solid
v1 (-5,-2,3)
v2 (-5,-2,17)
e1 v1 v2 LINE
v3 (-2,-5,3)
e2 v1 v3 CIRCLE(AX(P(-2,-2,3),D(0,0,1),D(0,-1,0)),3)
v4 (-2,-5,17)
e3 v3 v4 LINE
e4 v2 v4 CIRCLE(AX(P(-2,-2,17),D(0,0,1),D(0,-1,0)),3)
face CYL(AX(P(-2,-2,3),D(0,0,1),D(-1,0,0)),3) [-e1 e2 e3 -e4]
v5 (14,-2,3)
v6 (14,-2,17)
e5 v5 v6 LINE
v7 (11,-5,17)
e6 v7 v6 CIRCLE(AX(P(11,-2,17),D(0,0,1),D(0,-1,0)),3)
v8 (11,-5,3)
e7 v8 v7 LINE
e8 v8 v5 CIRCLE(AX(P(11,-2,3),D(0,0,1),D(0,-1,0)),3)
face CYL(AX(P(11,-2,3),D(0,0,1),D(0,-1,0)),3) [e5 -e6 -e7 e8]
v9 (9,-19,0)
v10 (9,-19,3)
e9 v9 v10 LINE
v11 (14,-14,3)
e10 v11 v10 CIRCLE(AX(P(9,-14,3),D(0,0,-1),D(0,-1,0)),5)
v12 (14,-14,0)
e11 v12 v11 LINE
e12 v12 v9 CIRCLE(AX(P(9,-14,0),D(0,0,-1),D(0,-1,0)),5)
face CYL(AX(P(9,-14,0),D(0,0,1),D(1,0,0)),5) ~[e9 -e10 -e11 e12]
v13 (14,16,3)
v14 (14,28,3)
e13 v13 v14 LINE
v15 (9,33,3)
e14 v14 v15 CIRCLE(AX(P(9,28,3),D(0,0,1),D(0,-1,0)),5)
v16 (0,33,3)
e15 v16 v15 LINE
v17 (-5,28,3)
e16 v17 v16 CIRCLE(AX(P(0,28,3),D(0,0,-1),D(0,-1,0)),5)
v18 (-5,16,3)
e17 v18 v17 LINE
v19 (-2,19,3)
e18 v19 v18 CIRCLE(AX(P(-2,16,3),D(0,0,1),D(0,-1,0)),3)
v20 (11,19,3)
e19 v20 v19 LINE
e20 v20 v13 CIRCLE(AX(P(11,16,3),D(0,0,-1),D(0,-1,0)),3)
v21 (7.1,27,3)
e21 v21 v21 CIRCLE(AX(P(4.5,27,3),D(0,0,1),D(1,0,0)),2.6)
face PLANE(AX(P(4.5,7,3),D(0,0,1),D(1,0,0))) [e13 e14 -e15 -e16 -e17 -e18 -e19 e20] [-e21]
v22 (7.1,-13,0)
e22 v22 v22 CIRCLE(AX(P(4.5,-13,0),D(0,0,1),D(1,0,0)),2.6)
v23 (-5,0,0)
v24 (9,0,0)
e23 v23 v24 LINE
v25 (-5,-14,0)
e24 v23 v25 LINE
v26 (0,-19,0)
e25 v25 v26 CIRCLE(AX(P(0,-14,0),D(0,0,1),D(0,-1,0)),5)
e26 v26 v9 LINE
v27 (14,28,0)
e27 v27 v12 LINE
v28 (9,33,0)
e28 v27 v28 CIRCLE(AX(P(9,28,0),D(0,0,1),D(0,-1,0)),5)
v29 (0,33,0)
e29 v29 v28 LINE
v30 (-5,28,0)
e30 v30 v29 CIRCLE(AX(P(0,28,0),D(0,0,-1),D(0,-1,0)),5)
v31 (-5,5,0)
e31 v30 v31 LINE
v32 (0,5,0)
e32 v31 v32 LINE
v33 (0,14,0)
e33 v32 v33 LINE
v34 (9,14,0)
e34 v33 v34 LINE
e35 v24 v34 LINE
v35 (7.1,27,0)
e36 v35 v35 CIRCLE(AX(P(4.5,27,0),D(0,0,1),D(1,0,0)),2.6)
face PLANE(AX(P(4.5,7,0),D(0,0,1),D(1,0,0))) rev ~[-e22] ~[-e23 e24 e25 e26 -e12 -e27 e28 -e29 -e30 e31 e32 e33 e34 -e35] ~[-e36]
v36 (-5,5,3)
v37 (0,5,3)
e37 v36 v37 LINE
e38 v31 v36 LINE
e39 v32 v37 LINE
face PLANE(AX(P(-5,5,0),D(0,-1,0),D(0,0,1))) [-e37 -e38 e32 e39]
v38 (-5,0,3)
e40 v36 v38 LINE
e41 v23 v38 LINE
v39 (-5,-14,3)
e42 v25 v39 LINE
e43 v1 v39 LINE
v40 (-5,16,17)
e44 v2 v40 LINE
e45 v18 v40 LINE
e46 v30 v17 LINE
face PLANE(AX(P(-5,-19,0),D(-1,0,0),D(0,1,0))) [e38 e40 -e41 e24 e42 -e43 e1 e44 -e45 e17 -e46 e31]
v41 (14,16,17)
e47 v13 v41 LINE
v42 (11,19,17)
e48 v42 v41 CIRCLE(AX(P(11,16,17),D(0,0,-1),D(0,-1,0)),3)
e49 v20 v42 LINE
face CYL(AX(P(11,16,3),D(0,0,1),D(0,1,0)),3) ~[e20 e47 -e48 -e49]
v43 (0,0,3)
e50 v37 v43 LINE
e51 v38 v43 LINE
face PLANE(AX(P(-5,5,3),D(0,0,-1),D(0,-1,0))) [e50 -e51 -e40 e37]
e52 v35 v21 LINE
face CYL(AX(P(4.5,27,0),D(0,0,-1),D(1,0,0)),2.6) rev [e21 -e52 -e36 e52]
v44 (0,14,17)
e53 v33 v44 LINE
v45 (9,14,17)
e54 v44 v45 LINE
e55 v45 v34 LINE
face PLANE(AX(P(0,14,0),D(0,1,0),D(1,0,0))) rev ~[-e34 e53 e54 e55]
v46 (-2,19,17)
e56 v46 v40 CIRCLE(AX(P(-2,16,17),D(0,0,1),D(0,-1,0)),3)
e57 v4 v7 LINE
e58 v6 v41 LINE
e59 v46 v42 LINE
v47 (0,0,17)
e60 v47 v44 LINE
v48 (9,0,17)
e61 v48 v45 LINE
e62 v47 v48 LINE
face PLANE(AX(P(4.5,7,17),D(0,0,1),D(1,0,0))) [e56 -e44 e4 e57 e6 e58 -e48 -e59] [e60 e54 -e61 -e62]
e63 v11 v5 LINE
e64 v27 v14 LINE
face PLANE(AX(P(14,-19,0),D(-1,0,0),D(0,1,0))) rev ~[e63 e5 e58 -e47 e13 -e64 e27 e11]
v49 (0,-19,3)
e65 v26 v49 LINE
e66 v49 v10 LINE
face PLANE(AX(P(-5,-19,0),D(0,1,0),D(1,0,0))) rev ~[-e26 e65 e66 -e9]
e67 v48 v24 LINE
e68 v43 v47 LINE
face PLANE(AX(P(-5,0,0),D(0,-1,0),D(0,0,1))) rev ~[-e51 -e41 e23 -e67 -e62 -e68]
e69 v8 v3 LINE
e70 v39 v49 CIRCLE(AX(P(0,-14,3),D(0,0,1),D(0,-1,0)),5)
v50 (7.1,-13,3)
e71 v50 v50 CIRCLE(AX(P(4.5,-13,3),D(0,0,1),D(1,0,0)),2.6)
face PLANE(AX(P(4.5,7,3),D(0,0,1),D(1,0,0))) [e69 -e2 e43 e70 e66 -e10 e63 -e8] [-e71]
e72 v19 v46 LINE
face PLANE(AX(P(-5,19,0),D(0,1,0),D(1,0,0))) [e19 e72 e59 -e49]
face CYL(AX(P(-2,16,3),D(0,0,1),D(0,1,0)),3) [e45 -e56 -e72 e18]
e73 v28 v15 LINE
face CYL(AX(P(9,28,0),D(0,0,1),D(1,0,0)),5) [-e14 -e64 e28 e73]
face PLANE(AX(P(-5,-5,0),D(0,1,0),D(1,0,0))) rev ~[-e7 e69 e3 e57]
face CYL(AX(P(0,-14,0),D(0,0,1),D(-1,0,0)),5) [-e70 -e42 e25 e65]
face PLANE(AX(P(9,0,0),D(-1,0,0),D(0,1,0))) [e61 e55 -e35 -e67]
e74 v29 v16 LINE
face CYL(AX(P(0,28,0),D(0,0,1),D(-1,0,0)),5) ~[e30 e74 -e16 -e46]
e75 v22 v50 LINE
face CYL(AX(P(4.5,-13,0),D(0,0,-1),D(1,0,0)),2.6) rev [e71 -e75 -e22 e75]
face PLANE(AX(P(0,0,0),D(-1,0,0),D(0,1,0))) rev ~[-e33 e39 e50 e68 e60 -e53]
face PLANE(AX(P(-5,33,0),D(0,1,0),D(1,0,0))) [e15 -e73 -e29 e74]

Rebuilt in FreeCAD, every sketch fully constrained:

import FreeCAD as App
import Part
import Sketcher


def edges_at(feature, points):
    """Names of the edges that pass closest to the given points."""
    edges = feature.Shape.Edges
    near = lambda p: min(range(len(edges)), key=lambda i: edges[i].distToShape(Part.Vertex(*p))[0])
    return sorted({f"Edge{near(p) + 1}" for p in points})

doc = App.newDocument("Part")
body = doc.addObject("PartDesign::Body", "Body")

# Sketch on XY plane
sketch1 = body.newObject("Sketcher::SketchObject", "Sketch")
sketch1.AttachmentSupport = (doc.getObject("XY_Plane"), [""])
sketch1.MapMode = "FlatFace"
sketch1.addGeometry([
    Part.LineSegment(App.Vector(-5, 33, 0), App.Vector(-5, -19, 0)),  # 0
    Part.LineSegment(App.Vector(-5, -19, 0), App.Vector(14, -19, 0)),  # 1
    Part.LineSegment(App.Vector(14, -19, 0), App.Vector(14, 33, 0)),  # 2
    Part.LineSegment(App.Vector(14, 33, 0), App.Vector(-5, 33, 0)),  # 3
    Part.Circle(App.Vector(4.5, -13, 0), App.Vector(0, 0, 1), 2.6),  # 4
    Part.LineSegment(App.Vector(9, 0, 0), App.Vector(0, 0, 0)),  # 5
    Part.LineSegment(App.Vector(0, 0, 0), App.Vector(0, 14, 0)),  # 6
    Part.LineSegment(App.Vector(0, 14, 0), App.Vector(9, 14, 0)),  # 7
    Part.LineSegment(App.Vector(9, 14, 0), App.Vector(9, 0, 0)),  # 8
    Part.Circle(App.Vector(4.5, 27, 0), App.Vector(0, 0, 1), 2.6),  # 9
], False)
sketch1.addConstraint([
    Sketcher.Constraint("Coincident", 0, 2, 1, 1),
    Sketcher.Constraint("Coincident", 1, 2, 2, 1),
    Sketcher.Constraint("Coincident", 2, 2, 3, 1),
    Sketcher.Constraint("Coincident", 3, 2, 0, 1),
    Sketcher.Constraint("Coincident", 5, 2, 6, 1),
    Sketcher.Constraint("Coincident", 6, 2, 7, 1),
    Sketcher.Constraint("Coincident", 7, 2, 8, 1),
    Sketcher.Constraint("Coincident", 8, 2, 5, 1),
    Sketcher.Constraint("Vertical", 0),
    Sketcher.Constraint("Horizontal", 1),
    Sketcher.Constraint("Vertical", 2),
    Sketcher.Constraint("Horizontal", 3),
    Sketcher.Constraint("Horizontal", 5),
    Sketcher.Constraint("Vertical", 6),
    Sketcher.Constraint("Horizontal", 7),
    Sketcher.Constraint("Vertical", 8),
    Sketcher.Constraint("Coincident", 5, 2, -1, 1),
    Sketcher.Constraint("Equal", 4, 9),
    Sketcher.Constraint("Vertical", 4, 3, 9, 3),
    Sketcher.Constraint("Diameter", 4, 5.2),
    Sketcher.Constraint("DistanceX", 1, 1, 1, 2, 19.0),
    Sketcher.Constraint("DistanceX", 5, 2, 5, 1, 9.0),
    Sketcher.Constraint("DistanceY", 0, 2, 0, 1, 52.0),
    Sketcher.Constraint("DistanceY", 6, 1, 6, 2, 14.0),
    Sketcher.Constraint("DistanceY", 4, 3, -1, 1, 13.0),
    Sketcher.Constraint("DistanceY", -1, 1, 9, 3, 27.0),
    Sketcher.Constraint("DistanceX", 0, 2, -1, 1, 5.0),
    Sketcher.Constraint("DistanceY", 0, 2, -1, 1, 19.0),
    Sketcher.Constraint("DistanceX", -1, 1, 4, 3, 4.5),
])
pad1 = body.newObject("PartDesign::Pad", "Pad")
pad1.Profile = sketch1
pad1.Length = 3

# Sketch on XY plane
sketch2 = body.newObject("Sketcher::SketchObject", "Sketch001")
sketch2.AttachmentSupport = (doc.getObject("XY_Plane"), [""])
sketch2.MapMode = "FlatFace"
sketch2.addGeometry([
    Part.LineSegment(App.Vector(-5, 19, 0), App.Vector(-5, -5, 0)),  # 0
    Part.LineSegment(App.Vector(-5, -5, 0), App.Vector(14, -5, 0)),  # 1
    Part.LineSegment(App.Vector(14, -5, 0), App.Vector(14, 19, 0)),  # 2
    Part.LineSegment(App.Vector(14, 19, 0), App.Vector(-5, 19, 0)),  # 3
    Part.LineSegment(App.Vector(9, 0, 0), App.Vector(0, 0, 0)),  # 4
    Part.LineSegment(App.Vector(0, 0, 0), App.Vector(0, 14, 0)),  # 5
    Part.LineSegment(App.Vector(0, 14, 0), App.Vector(9, 14, 0)),  # 6
    Part.LineSegment(App.Vector(9, 14, 0), App.Vector(9, 0, 0)),  # 7
], False)
sketch2.addConstraint([
    Sketcher.Constraint("Coincident", 0, 2, 1, 1),
    Sketcher.Constraint("Coincident", 1, 2, 2, 1),
    Sketcher.Constraint("Coincident", 2, 2, 3, 1),
    Sketcher.Constraint("Coincident", 3, 2, 0, 1),
    Sketcher.Constraint("Coincident", 4, 2, 5, 1),
    Sketcher.Constraint("Coincident", 5, 2, 6, 1),
    Sketcher.Constraint("Coincident", 6, 2, 7, 1),
    Sketcher.Constraint("Coincident", 7, 2, 4, 1),
    Sketcher.Constraint("Vertical", 0),
    Sketcher.Constraint("Horizontal", 1),
    Sketcher.Constraint("Vertical", 2),
    Sketcher.Constraint("Horizontal", 3),
    Sketcher.Constraint("Horizontal", 4),
    Sketcher.Constraint("Vertical", 5),
    Sketcher.Constraint("Horizontal", 6),
    Sketcher.Constraint("Vertical", 7),
    Sketcher.Constraint("Coincident", 4, 2, -1, 1),
    Sketcher.Constraint("DistanceX", 1, 1, 1, 2, 19.0),
    Sketcher.Constraint("DistanceX", 4, 2, 4, 1, 9.0),
    Sketcher.Constraint("DistanceY", 0, 2, 0, 1, 24.0),
    Sketcher.Constraint("DistanceY", 5, 1, 5, 2, 14.0),
    Sketcher.Constraint("DistanceX", 0, 2, -1, 1, 5.0),
    Sketcher.Constraint("DistanceY", 0, 2, -1, 1, 5.0),
])
pad2 = body.newObject("PartDesign::Pad", "Pad001")
pad2.Profile = sketch2
pad2.Length = 17
doc.recompute()

fillet = body.newObject("PartDesign::Fillet", "Fillet")
fillet.Base = (pad2, edges_at(pad2, [
    (14, -19, 1.5),
    (-5, -19, 1.5),
    (14, 33, 1.5),
    (-5, 33, 1.5),
]))
fillet.Radius = 5
doc.recompute()

fillet2 = body.newObject("PartDesign::Fillet", "Fillet001")
fillet2.Base = (fillet, edges_at(fillet, [(14, -5, 10)]))
fillet2.Radius = 3
doc.recompute()

fillet3 = body.newObject("PartDesign::Fillet", "Fillet002")
fillet3.Base = (fillet2, edges_at(fillet2, [(-5, -5, 10), (-5, 19, 10)]))
fillet3.Radius = 3
doc.recompute()

fillet4 = body.newObject("PartDesign::Fillet", "Fillet003")
fillet4.Base = (fillet3, edges_at(fillet3, [(14, 19, 10)]))
fillet4.Radius = 3

# Sketch on YZ plane
sketch3 = body.newObject("Sketcher::SketchObject", "Sketch002")
sketch3.AttachmentSupport = (doc.getObject("YZ_Plane"), [""])
sketch3.MapMode = "FlatFace"
sketch3.AttachmentOffset = App.Placement(App.Vector(0, 0, -5), App.Rotation())
sketch3.addGeometry([
    Part.LineSegment(App.Vector(5, 3, 0), App.Vector(5, 0, 0)),
    Part.LineSegment(App.Vector(5, 0, 0), App.Vector(0, 0, 0)),
    Part.LineSegment(App.Vector(0, 0, 0), App.Vector(0, 3, 0)),
    Part.LineSegment(App.Vector(0, 3, 0), App.Vector(5, 3, 0)),
], False)
sketch3.addConstraint([
    Sketcher.Constraint("Coincident", 0, 2, 1, 1),
    Sketcher.Constraint("Coincident", 1, 2, 2, 1),
    Sketcher.Constraint("Coincident", 2, 2, 3, 1),
    Sketcher.Constraint("Coincident", 3, 2, 0, 1),
    Sketcher.Constraint("Vertical", 0),
    Sketcher.Constraint("Horizontal", 1),
    Sketcher.Constraint("Vertical", 2),
    Sketcher.Constraint("Horizontal", 3),
    Sketcher.Constraint("Coincident", 1, 2, -1, 1),
    Sketcher.Constraint("DistanceX", 1, 2, 1, 1, 5.0),
    Sketcher.Constraint("DistanceY", 0, 2, 0, 1, 3.0),
])
pocket1 = body.newObject("PartDesign::Pocket", "Pocket")
pocket1.Profile = sketch3
pocket1.Length = 5
pocket1.Reversed = True

doc.recompute()
